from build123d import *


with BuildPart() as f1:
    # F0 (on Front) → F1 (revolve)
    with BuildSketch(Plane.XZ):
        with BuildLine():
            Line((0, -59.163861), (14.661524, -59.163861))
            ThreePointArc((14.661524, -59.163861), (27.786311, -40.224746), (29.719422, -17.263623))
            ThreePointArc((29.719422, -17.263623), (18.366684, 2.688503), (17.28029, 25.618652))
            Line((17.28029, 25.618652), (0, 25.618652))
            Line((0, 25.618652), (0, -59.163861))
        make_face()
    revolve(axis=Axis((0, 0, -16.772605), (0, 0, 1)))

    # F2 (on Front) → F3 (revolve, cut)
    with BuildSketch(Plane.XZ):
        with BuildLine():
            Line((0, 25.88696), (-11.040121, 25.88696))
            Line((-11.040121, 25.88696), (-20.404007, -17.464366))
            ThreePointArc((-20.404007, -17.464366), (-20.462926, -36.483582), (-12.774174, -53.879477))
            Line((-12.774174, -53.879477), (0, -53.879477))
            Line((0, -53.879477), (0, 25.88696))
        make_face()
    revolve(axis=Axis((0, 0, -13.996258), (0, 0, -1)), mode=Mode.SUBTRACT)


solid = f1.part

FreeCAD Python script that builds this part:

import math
import FreeCAD as App
import Part
import Sketcher
Q = App.Units.Quantity

doc = App.newDocument("Part")
body = doc.addObject("PartDesign::Body", "Body")

sketch1 = body.newObject("Sketcher::SketchObject", "Sketch")
sketch1.AttachmentSupport = (doc.getObject("XZ_Plane"), [""])
sketch1.MapMode = "FlatFace"
sketch1.addGeometry([
    Part.LineSegment(App.Vector(0, -59, 0), App.Vector(15, -59, 0)),
    Part.ArcOfCircle(Part.Circle(App.Vector(-14, -25, 0), App.Vector(0, 0, 1), 45), math.radians(-50), math.radians(10)),
    Part.ArcOfCircle(Part.Circle(App.Vector(66, 16, 0), App.Vector(0, 0, 1), 49), math.radians(169), math.radians(223)),
    Part.LineSegment(App.Vector(17, 26, 0), App.Vector(0, 26, 0)),
    Part.LineSegment(App.Vector(0, 26, 0), App.Vector(0, -59, 0)),
], False)
sketch1.addConstraint([
    Sketcher.Constraint("Coincident", 0, 2, 1, 1),
    Sketcher.Constraint("Coincident", 1, 2, 2, 2),
    Sketcher.Constraint("Coincident", 2, 1, 3, 1),
    Sketcher.Constraint("Coincident", 3, 2, 4, 1),
    Sketcher.Constraint("Coincident", 4, 2, 0, 1),
    Sketcher.Constraint("Horizontal", 0),
    Sketcher.Constraint("Horizontal", 3),
    Sketcher.Constraint("Vertical", 4),
    Sketcher.Constraint("PointOnObject", 3, 2, -2),
    Sketcher.Constraint("Radius", 1, Q("44.646014 mm")),
    Sketcher.Constraint("Radius", 2, Q("49.297873 mm")),
    Sketcher.Constraint("DistanceX", 3, 2, 3, 1, Q("17.28029 mm")),
    Sketcher.Constraint("DistanceY", -1, 1, 2, 3, Q("16.422498 mm")),
    Sketcher.Constraint("DistanceY", 1, 3, 1, 2, Q("7.861898 mm")),
    Sketcher.Constraint("DistanceX", 0, 1, 0, 2, Q("14.661524 mm")),
    Sketcher.Constraint("DistanceY", 4, 2, 4, 1, Q("84.782513 mm")),
    Sketcher.Constraint("DistanceY", 1, 3, -1, 1, Q("25.125521 mm")),
])
revolution = body.newObject("PartDesign::Revolution", "Revolution")
revolution.Profile = sketch1
revolution.ReferenceAxis = (sketch1, ["V_Axis"])
revolution.Angle = 360

sketch2 = body.newObject("Sketcher::SketchObject", "Sketch001")
sketch2.AttachmentSupport = (doc.getObject("XZ_Plane"), [""])
sketch2.MapMode = "FlatFace"
sketch2.addGeometry([
    Part.LineSegment(App.Vector(0, 26, 0), App.Vector(-11, 26, 0)),
    Part.LineSegment(App.Vector(-11, 26, 0), App.Vector(-20, -17, 0)),
    Part.ArcOfCircle(Part.Circle(App.Vector(24, -27, 0), App.Vector(0, 0, 1), 46), math.radians(168), math.radians(216)),
    Part.LineSegment(App.Vector(-13, -54, 0), App.Vector(0, -54, 0)),
    Part.LineSegment(App.Vector(0, -54, 0), App.Vector(0, 26, 0)),
], False)
sketch2.addConstraint([
    Sketcher.Constraint("Coincident", 0, 2, 1, 1),
    Sketcher.Constraint("Tangent", 1, 2, 2, 1),
    Sketcher.Constraint("Coincident", 2, 2, 3, 1),
    Sketcher.Constraint("Coincident", 3, 2, 4, 1),
    Sketcher.Constraint("Coincident", 4, 2, 0, 1),
    Sketcher.Constraint("Horizontal", 0),
    Sketcher.Constraint("Horizontal", 3),
    Sketcher.Constraint("Vertical", 4),
    Sketcher.Constraint("PointOnObject", 3, 2, -2),
    Sketcher.Constraint("Radius", 2, Q("45.697111 mm")),
    Sketcher.Constraint("DistanceX", 0, 2, 0, 1, Q("11.040121 mm")),
    Sketcher.Constraint("DistanceX", 3, 1, 3, 2, Q("12.774174 mm")),
    Sketcher.Constraint("DistanceY", 4, 1, 4, 2, Q("79.766437 mm")),
    Sketcher.Constraint("DistanceX", -1, 1, 2, 3, Q("24.26299 mm")),
    Sketcher.Constraint("DistanceY", -1, 1, 0, 2, Q("25.88696 mm")),
])
groove = body.newObject("PartDesign::Groove", "Groove")
groove.Profile = sketch2
groove.ReferenceAxis = (sketch2, ["V_Axis"])
groove.Angle = 360

doc.recompute()
